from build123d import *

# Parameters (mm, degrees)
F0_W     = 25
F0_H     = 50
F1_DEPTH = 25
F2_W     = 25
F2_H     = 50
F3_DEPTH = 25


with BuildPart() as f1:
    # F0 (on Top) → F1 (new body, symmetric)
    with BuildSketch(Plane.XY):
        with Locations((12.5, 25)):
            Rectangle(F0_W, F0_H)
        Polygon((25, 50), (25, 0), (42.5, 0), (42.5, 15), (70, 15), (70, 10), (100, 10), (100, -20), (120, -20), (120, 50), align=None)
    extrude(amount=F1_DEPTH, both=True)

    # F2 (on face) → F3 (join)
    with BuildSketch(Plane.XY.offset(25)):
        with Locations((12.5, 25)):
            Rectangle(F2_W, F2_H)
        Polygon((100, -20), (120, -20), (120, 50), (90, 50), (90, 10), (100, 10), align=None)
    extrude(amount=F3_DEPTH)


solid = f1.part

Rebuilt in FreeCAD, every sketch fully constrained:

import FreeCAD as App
import Part
import Sketcher
from FreeCAD import Vector

doc = App.newDocument("Part")
body = doc.addObject("PartDesign::Body", "Body")

sketch1 = doc.addObject("Sketcher::SketchObject", "Sketch")
body.addObject(sketch1)
sketch1.AttachmentSupport = (doc.XY_Plane, [""])
sketch1.MapMode = "FlatFace"
sketch1.addGeometry(Part.LineSegment(Vector(0, 50, 0), Vector(0, 0, 0)), False)
sketch1.addGeometry(Part.LineSegment(Vector(0, 0, 0), Vector(42.5, 0, 0)), False)
sketch1.addGeometry(Part.LineSegment(Vector(42.5, 0, 0), Vector(42.5, 15, 0)), False)
sketch1.addGeometry(Part.LineSegment(Vector(42.5, 15, 0), Vector(70, 15, 0)), False)
sketch1.addGeometry(Part.LineSegment(Vector(70, 15, 0), Vector(70, 10, 0)), False)
sketch1.addGeometry(Part.LineSegment(Vector(70, 10, 0), Vector(100, 10, 0)), False)
sketch1.addGeometry(Part.LineSegment(Vector(100, 10, 0), Vector(100, -20, 0)), False)
sketch1.addGeometry(Part.LineSegment(Vector(100, -20, 0), Vector(120, -20, 0)), False)
sketch1.addGeometry(Part.LineSegment(Vector(120, -20, 0), Vector(120, 50, 0)), False)
sketch1.addGeometry(Part.LineSegment(Vector(120, 50, 0), Vector(0, 50, 0)), False)
sketch1.addConstraint(Sketcher.Constraint("Coincident", 0, 2, 1, 1))
sketch1.addConstraint(Sketcher.Constraint("Coincident", 1, 2, 2, 1))
sketch1.addConstraint(Sketcher.Constraint("Coincident", 2, 2, 3, 1))
sketch1.addConstraint(Sketcher.Constraint("Coincident", 3, 2, 4, 1))
sketch1.addConstraint(Sketcher.Constraint("Coincident", 4, 2, 5, 1))
sketch1.addConstraint(Sketcher.Constraint("Coincident", 5, 2, 6, 1))
sketch1.addConstraint(Sketcher.Constraint("Coincident", 6, 2, 7, 1))
sketch1.addConstraint(Sketcher.Constraint("Coincident", 7, 2, 8, 1))
sketch1.addConstraint(Sketcher.Constraint("Coincident", 8, 2, 9, 1))
sketch1.addConstraint(Sketcher.Constraint("Coincident", 9, 2, 0, 1))
sketch1.addConstraint(Sketcher.Constraint("Vertical", 0))
sketch1.addConstraint(Sketcher.Constraint("Horizontal", 1))
sketch1.addConstraint(Sketcher.Constraint("Vertical", 2))
sketch1.addConstraint(Sketcher.Constraint("Horizontal", 3))
sketch1.addConstraint(Sketcher.Constraint("Vertical", 4))
sketch1.addConstraint(Sketcher.Constraint("Horizontal", 5))
sketch1.addConstraint(Sketcher.Constraint("Vertical", 6))
sketch1.addConstraint(Sketcher.Constraint("Horizontal", 7))
sketch1.addConstraint(Sketcher.Constraint("Vertical", 8))
sketch1.addConstraint(Sketcher.Constraint("Horizontal", 9))
sketch1.addConstraint(Sketcher.Constraint("Coincident", 0, 2, -1, 1))
sketch1.addConstraint(Sketcher.Constraint("Equal", 5, 6))
sketch1.addConstraint(Sketcher.Constraint("DistanceX", 5, 1, 5, 2, 30.0))
sketch1.addConstraint(Sketcher.Constraint("DistanceX", 7, 1, 7, 2, 20.0))
sketch1.addConstraint(Sketcher.Constraint("DistanceX", 9, 2, 9, 1, 120.0))
sketch1.addConstraint(Sketcher.Constraint("DistanceY", 0, 2, 0, 1, 50.0))
sketch1.addConstraint(Sketcher.Constraint("DistanceY", 2, 1, 2, 2, 15.0))
sketch1.addConstraint(Sketcher.Constraint("DistanceY", 4, 2, 4, 1, 5.0))
sketch1.addConstraint(Sketcher.Constraint("DistanceX", 1, 1, 1, 2, 42.5))
pad1 = doc.addObject("PartDesign::Pad", "Pad")
body.addObject(pad1)
pad1.Profile = sketch1
pad1.Length = 50
pad1.Midplane = True

sketch2 = doc.addObject("Sketcher::SketchObject", "Sketch001")
body.addObject(sketch2)
sketch2.AttachmentSupport = (doc.XY_Plane, [""])
sketch2.MapMode = "FlatFace"
sketch2.AttachmentOffset = App.Placement(Vector(0, 0, 25), App.Rotation())
sketch2.addGeometry(Part.LineSegment(Vector(0, 50, 0), Vector(0, 0, 0)), False)
sketch2.addGeometry(Part.LineSegment(Vector(0, 0, 0), Vector(25, 0, 0)), False)
sketch2.addGeometry(Part.LineSegment(Vector(25, 0, 0), Vector(25, 50, 0)), False)
sketch2.addGeometry(Part.LineSegment(Vector(25, 50, 0), Vector(0, 50, 0)), False)
sketch2.addGeometry(Part.LineSegment(Vector(100, -20, 0), Vector(120, -20, 0)), False)
sketch2.addGeometry(Part.LineSegment(Vector(120, -20, 0), Vector(120, 50, 0)), False)
sketch2.addGeometry(Part.LineSegment(Vector(120, 50, 0), Vector(90, 50, 0)), False)
sketch2.addGeometry(Part.LineSegment(Vector(90, 50, 0), Vector(90, 10, 0)), False)
sketch2.addGeometry(Part.LineSegment(Vector(90, 10, 0), Vector(100, 10, 0)), False)
sketch2.addGeometry(Part.LineSegment(Vector(100, 10, 0), Vector(100, -20, 0)), False)
sketch2.addConstraint(Sketcher.Constraint("Coincident", 0, 2, 1, 1))
sketch2.addConstraint(Sketcher.Constraint("Coincident", 1, 2, 2, 1))
sketch2.addConstraint(Sketcher.Constraint("Coincident", 2, 2, 3, 1))
sketch2.addConstraint(Sketcher.Constraint("Coincident", 3, 2, 0, 1))
sketch2.addConstraint(Sketcher.Constraint("Coincident", 4, 2, 5, 1))
sketch2.addConstraint(Sketcher.Constraint("Coincident", 5, 2, 6, 1))
sketch2.addConstraint(Sketcher.Constraint("Coincident", 6, 2, 7, 1))
sketch2.addConstraint(Sketcher.Constraint("Coincident", 7, 2, 8, 1))
sketch2.addConstraint(Sketcher.Constraint("Coincident", 8, 2, 9, 1))
sketch2.addConstraint(Sketcher.Constraint("Coincident", 9, 2, 4, 1))
sketch2.addConstraint(Sketcher.Constraint("Vertical", 0))
sketch2.addConstraint(Sketcher.Constraint("Horizontal", 1))
sketch2.addConstraint(Sketcher.Constraint("Vertical", 2))
sketch2.addConstraint(Sketcher.Constraint("Horizontal", 3))
sketch2.addConstraint(Sketcher.Constraint("Horizontal", 4))
sketch2.addConstraint(Sketcher.Constraint("Vertical", 5))
sketch2.addConstraint(Sketcher.Constraint("Horizontal", 6))
sketch2.addConstraint(Sketcher.Constraint("Vertical", 7))
sketch2.addConstraint(Sketcher.Constraint("Horizontal", 8))
sketch2.addConstraint(Sketcher.Constraint("Vertical", 9))
sketch2.addConstraint(Sketcher.Constraint("Coincident", 0, 2, -1, 1))
sketch2.addConstraint(Sketcher.Constraint("Horizontal", 3, 2, 5, 2))
sketch2.addConstraint(Sketcher.Constraint("Equal", 6, 9))
sketch2.addConstraint(Sketcher.Constraint("DistanceX", 1, 1, 1, 2, 25.0))
sketch2.addConstraint(Sketcher.Constraint("DistanceX", 4, 1, 4, 2, 20.0))
sketch2.addConstraint(Sketcher.Constraint("DistanceX", 6, 2, 6, 1, 30.0))
sketch2.addConstraint(Sketcher.Constraint("DistanceY", 0, 2, 0, 1, 50.0))
sketch2.addConstraint(Sketcher.Constraint("DistanceY", 5, 1, 5, 2, 70.0))
sketch2.addConstraint(Sketcher.Constraint("DistanceX", -1, 1, 4, 2, 120.0))
pad2 = doc.addObject("PartDesign::Pad", "Pad001")
body.addObject(pad2)
pad2.Profile = sketch2
pad2.Length = 25

doc.recompute()
